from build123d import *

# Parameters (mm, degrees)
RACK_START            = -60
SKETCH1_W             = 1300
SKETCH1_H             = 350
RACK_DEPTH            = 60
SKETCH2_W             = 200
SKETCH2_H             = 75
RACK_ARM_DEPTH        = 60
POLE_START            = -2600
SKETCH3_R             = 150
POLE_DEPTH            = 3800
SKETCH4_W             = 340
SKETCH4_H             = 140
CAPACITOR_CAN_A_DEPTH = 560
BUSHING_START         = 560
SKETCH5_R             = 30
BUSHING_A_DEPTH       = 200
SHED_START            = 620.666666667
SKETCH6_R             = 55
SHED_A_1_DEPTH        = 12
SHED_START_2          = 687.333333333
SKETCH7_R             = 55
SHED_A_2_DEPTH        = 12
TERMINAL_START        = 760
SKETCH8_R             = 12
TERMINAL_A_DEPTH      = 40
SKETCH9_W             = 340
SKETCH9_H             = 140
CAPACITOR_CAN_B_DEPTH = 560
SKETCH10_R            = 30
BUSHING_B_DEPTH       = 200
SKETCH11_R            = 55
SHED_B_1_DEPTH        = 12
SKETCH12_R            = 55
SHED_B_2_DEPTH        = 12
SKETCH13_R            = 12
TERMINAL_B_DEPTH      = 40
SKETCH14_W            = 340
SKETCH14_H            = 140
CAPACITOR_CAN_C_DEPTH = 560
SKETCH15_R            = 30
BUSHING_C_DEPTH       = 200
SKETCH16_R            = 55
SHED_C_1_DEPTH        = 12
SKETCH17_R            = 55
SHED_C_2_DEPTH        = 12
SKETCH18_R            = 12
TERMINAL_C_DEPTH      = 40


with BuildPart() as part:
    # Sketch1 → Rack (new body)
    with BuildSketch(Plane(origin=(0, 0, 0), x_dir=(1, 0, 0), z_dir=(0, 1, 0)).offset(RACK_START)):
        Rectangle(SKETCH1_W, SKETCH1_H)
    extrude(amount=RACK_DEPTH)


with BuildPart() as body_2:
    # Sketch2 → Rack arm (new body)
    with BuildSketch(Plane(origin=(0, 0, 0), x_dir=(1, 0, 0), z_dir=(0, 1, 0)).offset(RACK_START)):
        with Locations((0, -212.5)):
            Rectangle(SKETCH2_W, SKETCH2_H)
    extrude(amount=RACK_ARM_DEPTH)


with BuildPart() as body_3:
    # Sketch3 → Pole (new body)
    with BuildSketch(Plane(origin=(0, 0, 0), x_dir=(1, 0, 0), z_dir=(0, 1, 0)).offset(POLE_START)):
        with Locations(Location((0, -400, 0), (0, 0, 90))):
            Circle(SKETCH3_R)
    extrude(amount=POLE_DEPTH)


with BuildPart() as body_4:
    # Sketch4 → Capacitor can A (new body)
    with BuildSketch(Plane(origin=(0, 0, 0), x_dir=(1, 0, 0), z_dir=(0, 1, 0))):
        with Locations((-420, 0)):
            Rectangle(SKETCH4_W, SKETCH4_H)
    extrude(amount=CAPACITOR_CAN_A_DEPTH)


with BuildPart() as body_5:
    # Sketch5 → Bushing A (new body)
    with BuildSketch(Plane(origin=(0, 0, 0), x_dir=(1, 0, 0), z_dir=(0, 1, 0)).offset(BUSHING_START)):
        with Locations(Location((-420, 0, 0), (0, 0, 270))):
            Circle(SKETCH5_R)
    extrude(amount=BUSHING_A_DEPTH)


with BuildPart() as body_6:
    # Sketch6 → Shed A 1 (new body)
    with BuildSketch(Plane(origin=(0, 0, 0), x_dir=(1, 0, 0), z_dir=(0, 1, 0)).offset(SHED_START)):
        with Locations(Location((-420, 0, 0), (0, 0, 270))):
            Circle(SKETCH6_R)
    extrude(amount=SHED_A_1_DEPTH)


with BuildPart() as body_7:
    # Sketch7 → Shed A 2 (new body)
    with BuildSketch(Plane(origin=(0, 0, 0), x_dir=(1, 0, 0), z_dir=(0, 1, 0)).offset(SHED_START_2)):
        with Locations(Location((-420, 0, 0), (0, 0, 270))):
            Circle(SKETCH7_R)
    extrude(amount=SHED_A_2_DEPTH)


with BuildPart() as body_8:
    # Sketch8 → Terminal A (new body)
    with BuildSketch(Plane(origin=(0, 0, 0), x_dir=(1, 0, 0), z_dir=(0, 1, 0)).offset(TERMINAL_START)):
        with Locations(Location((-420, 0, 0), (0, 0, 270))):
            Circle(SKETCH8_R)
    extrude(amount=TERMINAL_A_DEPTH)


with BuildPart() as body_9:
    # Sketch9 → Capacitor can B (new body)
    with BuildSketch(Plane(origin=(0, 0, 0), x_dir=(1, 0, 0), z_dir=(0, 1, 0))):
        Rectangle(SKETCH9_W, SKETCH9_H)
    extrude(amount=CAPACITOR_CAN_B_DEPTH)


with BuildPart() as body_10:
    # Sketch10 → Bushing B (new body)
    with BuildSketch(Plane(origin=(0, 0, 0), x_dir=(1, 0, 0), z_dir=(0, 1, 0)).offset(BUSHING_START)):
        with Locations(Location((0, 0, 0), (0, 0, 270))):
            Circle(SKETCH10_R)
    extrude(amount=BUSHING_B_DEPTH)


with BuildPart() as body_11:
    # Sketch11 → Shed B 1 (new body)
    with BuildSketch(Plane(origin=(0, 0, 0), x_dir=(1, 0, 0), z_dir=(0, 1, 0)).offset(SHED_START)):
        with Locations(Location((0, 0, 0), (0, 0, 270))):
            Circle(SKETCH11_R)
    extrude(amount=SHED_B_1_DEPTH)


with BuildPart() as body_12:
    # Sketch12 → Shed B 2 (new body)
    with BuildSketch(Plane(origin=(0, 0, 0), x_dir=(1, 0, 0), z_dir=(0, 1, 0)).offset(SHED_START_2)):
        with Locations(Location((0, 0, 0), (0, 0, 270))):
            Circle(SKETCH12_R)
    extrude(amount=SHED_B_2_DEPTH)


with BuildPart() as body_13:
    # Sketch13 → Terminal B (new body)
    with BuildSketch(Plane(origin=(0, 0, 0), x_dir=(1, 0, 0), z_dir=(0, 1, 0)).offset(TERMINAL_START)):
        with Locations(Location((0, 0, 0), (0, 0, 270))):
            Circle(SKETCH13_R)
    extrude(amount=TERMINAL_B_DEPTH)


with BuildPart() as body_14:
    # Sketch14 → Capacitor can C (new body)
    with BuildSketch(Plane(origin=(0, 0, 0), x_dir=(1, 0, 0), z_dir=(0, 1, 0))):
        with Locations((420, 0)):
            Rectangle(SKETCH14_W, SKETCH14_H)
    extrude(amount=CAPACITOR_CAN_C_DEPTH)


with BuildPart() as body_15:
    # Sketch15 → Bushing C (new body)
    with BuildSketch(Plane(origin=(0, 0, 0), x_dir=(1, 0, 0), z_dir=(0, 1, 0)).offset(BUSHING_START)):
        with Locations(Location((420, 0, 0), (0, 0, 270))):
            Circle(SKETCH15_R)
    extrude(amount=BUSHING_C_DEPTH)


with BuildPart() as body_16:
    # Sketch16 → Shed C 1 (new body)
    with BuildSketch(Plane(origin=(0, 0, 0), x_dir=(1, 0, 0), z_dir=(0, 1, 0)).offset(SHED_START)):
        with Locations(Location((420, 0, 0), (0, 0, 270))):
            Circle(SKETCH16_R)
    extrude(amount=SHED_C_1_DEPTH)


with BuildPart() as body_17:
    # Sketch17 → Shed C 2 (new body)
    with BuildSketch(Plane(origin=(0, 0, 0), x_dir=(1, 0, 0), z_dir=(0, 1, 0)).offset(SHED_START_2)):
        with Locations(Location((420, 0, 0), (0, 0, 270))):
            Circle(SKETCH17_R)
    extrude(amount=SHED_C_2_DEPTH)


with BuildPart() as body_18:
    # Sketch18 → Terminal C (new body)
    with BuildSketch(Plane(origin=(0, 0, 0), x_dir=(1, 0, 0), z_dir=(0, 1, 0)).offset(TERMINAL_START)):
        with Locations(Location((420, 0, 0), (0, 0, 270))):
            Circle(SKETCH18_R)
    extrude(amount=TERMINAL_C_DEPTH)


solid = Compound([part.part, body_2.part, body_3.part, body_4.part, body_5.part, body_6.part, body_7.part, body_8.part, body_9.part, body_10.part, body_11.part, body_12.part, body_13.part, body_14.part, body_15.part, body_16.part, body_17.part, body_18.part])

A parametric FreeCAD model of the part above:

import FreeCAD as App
import Part
import Sketcher
from FreeCAD import Vector
Q = App.Units.Quantity


def add_polygon(sketch, points):
    """Adds a closed chain of lines whose ends are joined by coincident constraints."""
    first, n = sketch.GeometryCount, len(points)
    for a, b in zip(points, points[1:] + points[:1]):
        sketch.addGeometry(Part.LineSegment(App.Vector(*a, 0), App.Vector(*b, 0)), False)
    for i in range(n):
        sketch.addConstraint(Sketcher.Constraint("Coincident", first + i, 2, first + (i + 1) % n, 1))

doc = App.newDocument("Part")
body = doc.addObject("PartDesign::Body", "Body")

sketch1 = body.newObject("Sketcher::SketchObject", "Sketch")
sketch1.AttachmentSupport = (doc.getObject("XZ_Plane"), [""])
sketch1.MapMode = "FlatFace"
sketch1.AttachmentOffset = App.Placement(Vector(0, 0, 60), App.Rotation())
add_polygon(sketch1, [(-650, -175), (-650, 175), (650, 175), (650, -175)])
sketch1.addConstraint(Sketcher.Constraint("Vertical", 0))
sketch1.addConstraint(Sketcher.Constraint("Horizontal", 1))
sketch1.addConstraint(Sketcher.Constraint("Vertical", 2))
sketch1.addConstraint(Sketcher.Constraint("Horizontal", 3))
sketch1.addConstraint(Sketcher.Constraint("Symmetric", 0, 2, 2, 2, -1, 1))
sketch1.addConstraint(Sketcher.Constraint("DistanceX", 1, 1, 1, 2, Q("1300 mm")))
sketch1.addConstraint(Sketcher.Constraint("DistanceY", 0, 1, 0, 2, Q("350 mm")))
pad1 = body.newObject("PartDesign::Pad", "Pad")
pad1.Profile = sketch1
pad1.Length = 60
pad1.Reversed = True
body2 = doc.addObject("PartDesign::Body", "Body001")

sketch2 = body2.newObject("Sketcher::SketchObject", "Sketch001")
sketch2.AttachmentSupport = (doc.getObject("XZ_Plane001"), [""])
sketch2.MapMode = "FlatFace"
sketch2.AttachmentOffset = App.Placement(Vector(0, 0, 60), App.Rotation())
add_polygon(sketch2, [(-100, 175), (-100, 250), (100, 250), (100, 175)])
sketch2.addConstraint(Sketcher.Constraint("Vertical", 0))
sketch2.addConstraint(Sketcher.Constraint("Horizontal", 1))
sketch2.addConstraint(Sketcher.Constraint("Vertical", 2))
sketch2.addConstraint(Sketcher.Constraint("Horizontal", 3))
sketch2.addConstraint(Sketcher.Constraint("DistanceX", 1, 1, 1, 2, Q("200 mm")))
sketch2.addConstraint(Sketcher.Constraint("DistanceY", 0, 1, 0, 2, Q("75 mm")))
sketch2.addConstraint(Sketcher.Constraint("DistanceX", 0, 2, -1, 1, Q("100 mm")))
sketch2.addConstraint(Sketcher.Constraint("DistanceY", -1, 1, 0, 2, Q("250 mm")))
pad2 = body2.newObject("PartDesign::Pad", "Pad001")
pad2.Profile = sketch2
pad2.Length = 60
pad2.Reversed = True
body3 = doc.addObject("PartDesign::Body", "Body002")

sketch3 = body3.newObject("Sketcher::SketchObject", "Sketch002")
sketch3.AttachmentSupport = (doc.getObject("XZ_Plane002"), [""])
sketch3.MapMode = "FlatFace"
sketch3.AttachmentOffset = App.Placement(Vector(0, 0, 2600), App.Rotation())
sketch3.addGeometry(Part.Circle(Vector(0, 400, 0), Vector(0, 0, 1), 150), False)
sketch3.addConstraint(Sketcher.Constraint("PointOnObject", 0, 3, -2))
sketch3.addConstraint(Sketcher.Constraint("Diameter", 0, Q("300 mm")))
sketch3.addConstraint(Sketcher.Constraint("DistanceY", -1, 1, 0, 3, Q("400 mm")))
pad3 = body3.newObject("PartDesign::Pad", "Pad002")
pad3.Profile = sketch3
pad3.Length = 3800
pad3.Reversed = True
body4 = doc.addObject("PartDesign::Body", "Body003")

sketch4 = body4.newObject("Sketcher::SketchObject", "Sketch003")
sketch4.AttachmentSupport = (doc.getObject("XZ_Plane003"), [""])
sketch4.MapMode = "FlatFace"
add_polygon(sketch4, [(-590, -70), (-590, 70), (-250, 70), (-250, -70)])
sketch4.addConstraint(Sketcher.Constraint("Vertical", 0))
sketch4.addConstraint(Sketcher.Constraint("Horizontal", 1))
sketch4.addConstraint(Sketcher.Constraint("Vertical", 2))
sketch4.addConstraint(Sketcher.Constraint("Horizontal", 3))
sketch4.addConstraint(Sketcher.Constraint("DistanceX", 1, 1, 1, 2, Q("340 mm")))
sketch4.addConstraint(Sketcher.Constraint("DistanceY", 0, 1, 0, 2, Q("140 mm")))
sketch4.addConstraint(Sketcher.Constraint("DistanceX", 0, 2, -1, 1, Q("590 mm")))
sketch4.addConstraint(Sketcher.Constraint("DistanceY", -1, 1, 0, 2, Q("70 mm")))
pad4 = body4.newObject("PartDesign::Pad", "Pad003")
pad4.Profile = sketch4
pad4.Length = 560
pad4.Reversed = True
body5 = doc.addObject("PartDesign::Body", "Body004")

sketch5 = body5.newObject("Sketcher::SketchObject", "Sketch004")
sketch5.AttachmentSupport = (doc.getObject("XZ_Plane004"), [""])
sketch5.MapMode = "FlatFace"
sketch5.AttachmentOffset = App.Placement(Vector(0, 0, -560), App.Rotation())
sketch5.addGeometry(Part.Circle(Vector(-420, 0, 0), Vector(0, 0, 1), 30), False)
sketch5.addConstraint(Sketcher.Constraint("PointOnObject", 0, 3, -1))
sketch5.addConstraint(Sketcher.Constraint("Diameter", 0, Q("60 mm")))
sketch5.addConstraint(Sketcher.Constraint("DistanceX", 0, 3, -1, 1, Q("420 mm")))
pad5 = body5.newObject("PartDesign::Pad", "Pad004")
pad5.Profile = sketch5
pad5.Length = 200
pad5.Reversed = True
body6 = doc.addObject("PartDesign::Body", "Body005")

sketch6 = body6.newObject("Sketcher::SketchObject", "Sketch005")
sketch6.AttachmentSupport = (doc.getObject("XZ_Plane005"), [""])
sketch6.MapMode = "FlatFace"
sketch6.AttachmentOffset = App.Placement(Vector(0, 0, -620.666667), App.Rotation())
sketch6.addGeometry(Part.Circle(Vector(-420, 0, 0), Vector(0, 0, 1), 55), False)
sketch6.addConstraint(Sketcher.Constraint("PointOnObject", 0, 3, -1))
sketch6.addConstraint(Sketcher.Constraint("Diameter", 0, Q("110 mm")))
sketch6.addConstraint(Sketcher.Constraint("DistanceX", 0, 3, -1, 1, Q("420 mm")))
pad6 = body6.newObject("PartDesign::Pad", "Pad005")
pad6.Profile = sketch6
pad6.Length = 12
pad6.Reversed = True
body7 = doc.addObject("PartDesign::Body", "Body006")

sketch7 = body7.newObject("Sketcher::SketchObject", "Sketch006")
sketch7.AttachmentSupport = (doc.getObject("XZ_Plane006"), [""])
sketch7.MapMode = "FlatFace"
sketch7.AttachmentOffset = App.Placement(Vector(0, 0, -687.333333), App.Rotation())
sketch7.addGeometry(Part.Circle(Vector(-420, 0, 0), Vector(0, 0, 1), 55), False)
sketch7.addConstraint(Sketcher.Constraint("PointOnObject", 0, 3, -1))
sketch7.addConstraint(Sketcher.Constraint("Diameter", 0, Q("110 mm")))
sketch7.addConstraint(Sketcher.Constraint("DistanceX", 0, 3, -1, 1, Q("420 mm")))
pad7 = body7.newObject("PartDesign::Pad", "Pad006")
pad7.Profile = sketch7
pad7.Length = 12
pad7.Reversed = True
body8 = doc.addObject("PartDesign::Body", "Body007")

sketch8 = body8.newObject("Sketcher::SketchObject", "Sketch007")
sketch8.AttachmentSupport = (doc.getObject("XZ_Plane007"), [""])
sketch8.MapMode = "FlatFace"
sketch8.AttachmentOffset = App.Placement(Vector(0, 0, -760), App.Rotation())
sketch8.addGeometry(Part.Circle(Vector(-420, 0, 0), Vector(0, 0, 1), 12), False)
sketch8.addConstraint(Sketcher.Constraint("PointOnObject", 0, 3, -1))
sketch8.addConstraint(Sketcher.Constraint("Diameter", 0, Q("24 mm")))
sketch8.addConstraint(Sketcher.Constraint("DistanceX", 0, 3, -1, 1, Q("420 mm")))
pad8 = body8.newObject("PartDesign::Pad", "Pad007")
pad8.Profile = sketch8
pad8.Length = 40
pad8.Reversed = True
body9 = doc.addObject("PartDesign::Body", "Body008")

sketch9 = body9.newObject("Sketcher::SketchObject", "Sketch008")
sketch9.AttachmentSupport = (doc.getObject("XZ_Plane008"), [""])
sketch9.MapMode = "FlatFace"
add_polygon(sketch9, [(-170, -70), (-170, 70), (170, 70), (170, -70)])
sketch9.addConstraint(Sketcher.Constraint("Vertical", 0))
sketch9.addConstraint(Sketcher.Constraint("Horizontal", 1))
sketch9.addConstraint(Sketcher.Constraint("Vertical", 2))
sketch9.addConstraint(Sketcher.Constraint("Horizontal", 3))
sketch9.addConstraint(Sketcher.Constraint("Symmetric", 0, 2, 2, 2, -1, 1))
sketch9.addConstraint(Sketcher.Constraint("DistanceX", 1, 1, 1, 2, Q("340 mm")))
sketch9.addConstraint(Sketcher.Constraint("DistanceY", 0, 1, 0, 2, Q("140 mm")))
pad9 = body9.newObject("PartDesign::Pad", "Pad008")
pad9.Profile = sketch9
pad9.Length = 560
pad9.Reversed = True
body10 = doc.addObject("PartDesign::Body", "Body009")

sketch10 = body10.newObject("Sketcher::SketchObject", "Sketch009")
sketch10.AttachmentSupport = (doc.getObject("XZ_Plane009"), [""])
sketch10.MapMode = "FlatFace"
sketch10.AttachmentOffset = App.Placement(Vector(0, 0, -560), App.Rotation())
sketch10.addGeometry(Part.Circle(Vector(0, 0, 0), Vector(0, 0, 1), 30), False)
sketch10.addConstraint(Sketcher.Constraint("Coincident", 0, 3, -1, 1))
sketch10.addConstraint(Sketcher.Constraint("Diameter", 0, Q("60 mm")))
pad10 = body10.newObject("PartDesign::Pad", "Pad009")
pad10.Profile = sketch10
pad10.Length = 200
pad10.Reversed = True
body11 = doc.addObject("PartDesign::Body", "Body010")

sketch11 = body11.newObject("Sketcher::SketchObject", "Sketch010")
sketch11.AttachmentSupport = (doc.getObject("XZ_Plane010"), [""])
sketch11.MapMode = "FlatFace"
sketch11.AttachmentOffset = App.Placement(Vector(0, 0, -620.666667), App.Rotation())
sketch11.addGeometry(Part.Circle(Vector(0, 0, 0), Vector(0, 0, 1), 55), False)
sketch11.addConstraint(Sketcher.Constraint("Coincident", 0, 3, -1, 1))
sketch11.addConstraint(Sketcher.Constraint("Diameter", 0, Q("110 mm")))
pad11 = body11.newObject("PartDesign::Pad", "Pad010")
pad11.Profile = sketch11
pad11.Length = 12
pad11.Reversed = True
body12 = doc.addObject("PartDesign::Body", "Body011")

sketch12 = body12.newObject("Sketcher::SketchObject", "Sketch011")
sketch12.AttachmentSupport = (doc.getObject("XZ_Plane011"), [""])
sketch12.MapMode = "FlatFace"
sketch12.AttachmentOffset = App.Placement(Vector(0, 0, -687.333333), App.Rotation())
sketch12.addGeometry(Part.Circle(Vector(0, 0, 0), Vector(0, 0, 1), 55), False)
sketch12.addConstraint(Sketcher.Constraint("Coincident", 0, 3, -1, 1))
sketch12.addConstraint(Sketcher.Constraint("Diameter", 0, Q("110 mm")))
pad12 = body12.newObject("PartDesign::Pad", "Pad011")
pad12.Profile = sketch12
pad12.Length = 12
pad12.Reversed = True
body13 = doc.addObject("PartDesign::Body", "Body012")

sketch13 = body13.newObject("Sketcher::SketchObject", "Sketch012")
sketch13.AttachmentSupport = (doc.getObject("XZ_Plane012"), [""])
sketch13.MapMode = "FlatFace"
sketch13.AttachmentOffset = App.Placement(Vector(0, 0, -760), App.Rotation())
sketch13.addGeometry(Part.Circle(Vector(0, 0, 0), Vector(0, 0, 1), 12), False)
sketch13.addConstraint(Sketcher.Constraint("Coincident", 0, 3, -1, 1))
sketch13.addConstraint(Sketcher.Constraint("Diameter", 0, Q("24 mm")))
pad13 = body13.newObject("PartDesign::Pad", "Pad012")
pad13.Profile = sketch13
pad13.Length = 40
pad13.Reversed = True
body14 = doc.addObject("PartDesign::Body", "Body013")

sketch14 = body14.newObject("Sketcher::SketchObject", "Sketch013")
sketch14.AttachmentSupport = (doc.getObject("XZ_Plane013"), [""])
sketch14.MapMode = "FlatFace"
add_polygon(sketch14, [(250, -70), (250, 70), (590, 70), (590, -70)])
sketch14.addConstraint(Sketcher.Constraint("Vertical", 0))
sketch14.addConstraint(Sketcher.Constraint("Horizontal", 1))
sketch14.addConstraint(Sketcher.Constraint("Vertical", 2))
sketch14.addConstraint(Sketcher.Constraint("Horizontal", 3))
sketch14.addConstraint(Sketcher.Constraint("DistanceX", 1, 1, 1, 2, Q("340 mm")))
sketch14.addConstraint(Sketcher.Constraint("DistanceY", 0, 1, 0, 2, Q("140 mm")))
sketch14.addConstraint(Sketcher.Constraint("DistanceX", -1, 1, 0, 2, Q("250 mm")))
sketch14.addConstraint(Sketcher.Constraint("DistanceY", -1, 1, 0, 2, Q("70 mm")))
pad14 = body14.newObject("PartDesign::Pad", "Pad013")
pad14.Profile = sketch14
pad14.Length = 560
pad14.Reversed = True
body15 = doc.addObject("PartDesign::Body", "Body014")

sketch15 = body15.newObject("Sketcher::SketchObject", "Sketch014")
sketch15.AttachmentSupport = (doc.getObject("XZ_Plane014"), [""])
sketch15.MapMode = "FlatFace"
sketch15.AttachmentOffset = App.Placement(Vector(0, 0, -560), App.Rotation())
sketch15.addGeometry(Part.Circle(Vector(420, 0, 0), Vector(0, 0, 1), 30), False)
sketch15.addConstraint(Sketcher.Constraint("PointOnObject", 0, 3, -1))
sketch15.addConstraint(Sketcher.Constraint("Diameter", 0, Q("60 mm")))
sketch15.addConstraint(Sketcher.Constraint("DistanceX", -1, 1, 0, 3, Q("420 mm")))
pad15 = body15.newObject("PartDesign::Pad", "Pad014")
pad15.Profile = sketch15
pad15.Length = 200
pad15.Reversed = True
body16 = doc.addObject("PartDesign::Body", "Body015")

sketch16 = body16.newObject("Sketcher::SketchObject", "Sketch015")
sketch16.AttachmentSupport = (doc.getObject("XZ_Plane015"), [""])
sketch16.MapMode = "FlatFace"
sketch16.AttachmentOffset = App.Placement(Vector(0, 0, -620.666667), App.Rotation())
sketch16.addGeometry(Part.Circle(Vector(420, 0, 0), Vector(0, 0, 1), 55), False)
sketch16.addConstraint(Sketcher.Constraint("PointOnObject", 0, 3, -1))
sketch16.addConstraint(Sketcher.Constraint("Diameter", 0, Q("110 mm")))
sketch16.addConstraint(Sketcher.Constraint("DistanceX", -1, 1, 0, 3, Q("420 mm")))
pad16 = body16.newObject("PartDesign::Pad", "Pad015")
pad16.Profile = sketch16
pad16.Length = 12
pad16.Reversed = True
body17 = doc.addObject("PartDesign::Body", "Body016")

sketch17 = body17.newObject("Sketcher::SketchObject", "Sketch016")
sketch17.AttachmentSupport = (doc.getObject("XZ_Plane016"), [""])
sketch17.MapMode = "FlatFace"
sketch17.AttachmentOffset = App.Placement(Vector(0, 0, -687.333333), App.Rotation())
sketch17.addGeometry(Part.Circle(Vector(420, 0, 0), Vector(0, 0, 1), 55), False)
sketch17.addConstraint(Sketcher.Constraint("PointOnObject", 0, 3, -1))
sketch17.addConstraint(Sketcher.Constraint("Diameter", 0, Q("110 mm")))
sketch17.addConstraint(Sketcher.Constraint("DistanceX", -1, 1, 0, 3, Q("420 mm")))
pad17 = body17.newObject("PartDesign::Pad", "Pad016")
pad17.Profile = sketch17
pad17.Length = 12
pad17.Reversed = True
body18 = doc.addObject("PartDesign::Body", "Body017")

sketch18 = body18.newObject("Sketcher::SketchObject", "Sketch017")
sketch18.AttachmentSupport = (doc.getObject("XZ_Plane017"), [""])
sketch18.MapMode = "FlatFace"
sketch18.AttachmentOffset = App.Placement(Vector(0, 0, -760), App.Rotation())
sketch18.addGeometry(Part.Circle(Vector(420, 0, 0), Vector(0, 0, 1), 12), False)
sketch18.addConstraint(Sketcher.Constraint("PointOnObject", 0, 3, -1))
sketch18.addConstraint(Sketcher.Constraint("Diameter", 0, Q("24 mm")))
sketch18.addConstraint(Sketcher.Constraint("DistanceX", -1, 1, 0, 3, Q("420 mm")))
pad18 = body18.newObject("PartDesign::Pad", "Pad017")
pad18.Profile = sketch18
pad18.Length = 40
pad18.Reversed = True

doc.recompute()
